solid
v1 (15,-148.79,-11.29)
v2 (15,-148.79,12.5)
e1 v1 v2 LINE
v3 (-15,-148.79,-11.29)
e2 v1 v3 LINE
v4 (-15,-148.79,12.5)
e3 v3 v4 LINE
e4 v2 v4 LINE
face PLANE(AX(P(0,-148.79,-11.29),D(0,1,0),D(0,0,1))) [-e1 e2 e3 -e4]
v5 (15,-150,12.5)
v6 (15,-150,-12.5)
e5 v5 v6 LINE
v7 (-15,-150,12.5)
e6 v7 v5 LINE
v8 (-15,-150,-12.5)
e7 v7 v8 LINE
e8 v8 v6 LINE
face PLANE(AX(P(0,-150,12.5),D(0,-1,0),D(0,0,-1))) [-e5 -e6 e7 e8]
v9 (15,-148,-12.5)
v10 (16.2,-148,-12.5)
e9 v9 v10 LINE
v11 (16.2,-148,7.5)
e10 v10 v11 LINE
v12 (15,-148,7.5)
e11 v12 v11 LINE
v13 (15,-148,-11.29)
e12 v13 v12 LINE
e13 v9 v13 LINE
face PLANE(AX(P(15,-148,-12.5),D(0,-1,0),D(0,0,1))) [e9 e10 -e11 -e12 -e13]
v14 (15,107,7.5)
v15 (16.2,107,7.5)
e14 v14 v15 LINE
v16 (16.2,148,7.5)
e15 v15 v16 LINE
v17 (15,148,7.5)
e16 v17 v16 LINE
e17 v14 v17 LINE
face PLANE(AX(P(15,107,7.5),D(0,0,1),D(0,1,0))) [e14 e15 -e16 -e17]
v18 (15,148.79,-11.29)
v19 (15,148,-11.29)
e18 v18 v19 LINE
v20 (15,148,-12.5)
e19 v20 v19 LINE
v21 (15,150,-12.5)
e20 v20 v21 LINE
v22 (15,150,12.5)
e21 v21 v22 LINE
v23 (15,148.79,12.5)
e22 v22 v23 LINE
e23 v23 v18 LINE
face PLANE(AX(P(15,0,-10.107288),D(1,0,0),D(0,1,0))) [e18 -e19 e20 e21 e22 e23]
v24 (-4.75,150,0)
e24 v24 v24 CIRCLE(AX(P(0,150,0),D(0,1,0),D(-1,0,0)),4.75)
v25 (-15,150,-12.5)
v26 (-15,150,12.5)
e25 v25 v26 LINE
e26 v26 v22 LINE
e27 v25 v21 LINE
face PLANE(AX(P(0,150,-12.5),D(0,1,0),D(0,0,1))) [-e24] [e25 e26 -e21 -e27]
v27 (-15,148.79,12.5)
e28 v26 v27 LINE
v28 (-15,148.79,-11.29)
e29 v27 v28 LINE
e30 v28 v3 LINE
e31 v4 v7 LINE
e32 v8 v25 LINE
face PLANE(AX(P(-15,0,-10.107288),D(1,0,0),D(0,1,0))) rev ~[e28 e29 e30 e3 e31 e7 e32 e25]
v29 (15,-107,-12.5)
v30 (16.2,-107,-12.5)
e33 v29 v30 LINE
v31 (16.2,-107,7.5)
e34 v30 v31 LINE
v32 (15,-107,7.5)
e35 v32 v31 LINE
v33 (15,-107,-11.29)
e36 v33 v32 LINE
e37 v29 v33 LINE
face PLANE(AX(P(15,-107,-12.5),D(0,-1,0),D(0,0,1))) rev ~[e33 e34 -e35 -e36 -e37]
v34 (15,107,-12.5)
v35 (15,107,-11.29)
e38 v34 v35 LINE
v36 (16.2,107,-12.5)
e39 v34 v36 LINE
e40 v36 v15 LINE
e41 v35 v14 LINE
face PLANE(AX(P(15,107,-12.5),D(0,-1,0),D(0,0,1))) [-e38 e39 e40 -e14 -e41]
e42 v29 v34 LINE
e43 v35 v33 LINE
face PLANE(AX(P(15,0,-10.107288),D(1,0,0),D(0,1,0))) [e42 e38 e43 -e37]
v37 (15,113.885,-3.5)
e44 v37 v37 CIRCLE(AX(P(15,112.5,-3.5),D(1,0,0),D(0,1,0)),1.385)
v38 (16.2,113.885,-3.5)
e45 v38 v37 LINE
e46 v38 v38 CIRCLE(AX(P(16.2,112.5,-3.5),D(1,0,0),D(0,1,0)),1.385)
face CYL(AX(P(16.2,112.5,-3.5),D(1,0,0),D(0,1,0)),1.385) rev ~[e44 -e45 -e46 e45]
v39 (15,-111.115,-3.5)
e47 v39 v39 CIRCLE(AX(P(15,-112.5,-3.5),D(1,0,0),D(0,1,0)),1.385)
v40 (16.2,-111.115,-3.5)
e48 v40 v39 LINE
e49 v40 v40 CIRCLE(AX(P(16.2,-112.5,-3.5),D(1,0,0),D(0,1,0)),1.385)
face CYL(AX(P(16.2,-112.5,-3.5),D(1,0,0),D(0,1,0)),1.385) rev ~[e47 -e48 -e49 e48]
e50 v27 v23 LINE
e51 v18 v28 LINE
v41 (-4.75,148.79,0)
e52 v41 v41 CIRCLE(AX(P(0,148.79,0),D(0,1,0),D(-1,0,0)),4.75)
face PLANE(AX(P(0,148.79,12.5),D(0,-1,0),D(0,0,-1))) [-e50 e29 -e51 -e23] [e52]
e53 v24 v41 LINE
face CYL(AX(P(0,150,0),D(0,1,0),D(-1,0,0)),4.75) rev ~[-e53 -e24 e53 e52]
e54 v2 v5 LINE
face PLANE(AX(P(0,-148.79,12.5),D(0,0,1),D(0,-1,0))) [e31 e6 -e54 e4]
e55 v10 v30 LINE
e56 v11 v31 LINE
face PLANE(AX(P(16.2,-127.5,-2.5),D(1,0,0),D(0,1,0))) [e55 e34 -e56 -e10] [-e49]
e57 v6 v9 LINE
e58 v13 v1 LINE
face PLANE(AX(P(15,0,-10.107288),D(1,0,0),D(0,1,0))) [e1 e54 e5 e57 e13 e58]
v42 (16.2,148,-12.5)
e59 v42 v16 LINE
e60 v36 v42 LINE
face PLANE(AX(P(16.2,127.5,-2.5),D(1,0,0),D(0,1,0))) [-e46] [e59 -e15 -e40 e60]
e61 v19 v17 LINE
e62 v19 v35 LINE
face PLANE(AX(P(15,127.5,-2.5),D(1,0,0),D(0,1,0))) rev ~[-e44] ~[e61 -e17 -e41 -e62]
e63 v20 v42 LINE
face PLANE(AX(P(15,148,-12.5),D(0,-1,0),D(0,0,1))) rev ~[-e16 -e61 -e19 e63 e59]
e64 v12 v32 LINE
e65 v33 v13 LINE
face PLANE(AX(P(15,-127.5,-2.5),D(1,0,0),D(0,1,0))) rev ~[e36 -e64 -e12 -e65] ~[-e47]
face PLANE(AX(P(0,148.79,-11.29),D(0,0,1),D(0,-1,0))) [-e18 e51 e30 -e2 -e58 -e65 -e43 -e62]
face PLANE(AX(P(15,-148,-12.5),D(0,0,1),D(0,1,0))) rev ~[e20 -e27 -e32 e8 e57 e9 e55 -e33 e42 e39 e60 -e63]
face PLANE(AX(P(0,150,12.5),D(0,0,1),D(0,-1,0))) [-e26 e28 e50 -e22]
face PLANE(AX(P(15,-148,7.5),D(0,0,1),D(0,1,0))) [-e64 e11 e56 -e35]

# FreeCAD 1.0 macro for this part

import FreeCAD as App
import Part
import Sketcher
Q = App.Units.Quantity


def add_polygon(sketch, points):
    """Adds a closed chain of lines whose ends are joined by coincident constraints."""
    first, n = sketch.GeometryCount, len(points)
    for a, b in zip(points, points[1:] + points[:1]):
        sketch.addGeometry(Part.LineSegment(App.Vector(*a, 0), App.Vector(*b, 0)), False)
    for i in range(n):
        sketch.addConstraint(Sketcher.Constraint("Coincident", first + i, 2, first + (i + 1) % n, 1))

doc = App.newDocument("Part")
body = doc.addObject("PartDesign::Body", "Body")

# Sketch on YZ plane
sketch1 = body.newObject("Sketcher::SketchObject", "Sketch")
sketch1.AttachmentSupport = (doc.getObject("YZ_Plane"), [""])
sketch1.MapMode = "FlatFace"
add_polygon(sketch1, [(-148.8, 12.5), (-150, 12.5), (-150, -12.5), (150, -12.5), (150, 12.5), (148.8, 12.5), (148.8, -11.3), (-148.8, -11.3)])  # lines 0-7
sketch1.addConstraint(Sketcher.Constraint("Horizontal", 0))
sketch1.addConstraint(Sketcher.Constraint("Vertical", 1))
sketch1.addConstraint(Sketcher.Constraint("Horizontal", 2))
sketch1.addConstraint(Sketcher.Constraint("Vertical", 3))
sketch1.addConstraint(Sketcher.Constraint("Horizontal", 4))
sketch1.addConstraint(Sketcher.Constraint("Vertical", 5))
sketch1.addConstraint(Sketcher.Constraint("Horizontal", 6))
sketch1.addConstraint(Sketcher.Constraint("Vertical", 7))
sketch1.addConstraint(Sketcher.Constraint("Symmetric", 0, 2, 2, 2, -1, 1))
sketch1.addConstraint(Sketcher.Constraint("Symmetric", 4, 2, 7, 2, -2))
sketch1.addConstraint(Sketcher.Constraint("DistanceX", 2, 1, 2, 2, Q("300 mm")))
sketch1.addConstraint(Sketcher.Constraint("DistanceY", 1, 2, 1, 1, Q("25 mm")))
sketch1.addConstraint(Sketcher.Constraint("DistanceX", 0, 2, 0, 1, Q("1.21 mm")))
sketch1.addConstraint(Sketcher.Constraint("DistanceY", 5, 2, 5, 1, Q("23.79 mm")))
pad1 = body.newObject("PartDesign::Pad", "Pad")
pad1.Profile = sketch1
pad1.Length = 30
pad1.Midplane = True

# Sketch on YZ plane
sketch2 = body.newObject("Sketcher::SketchObject", "Sketch001")
sketch2.AttachmentSupport = (doc.getObject("YZ_Plane"), [""])
sketch2.MapMode = "FlatFace"
sketch2.AttachmentOffset = App.Placement(App.Vector(0, 0, 15), App.Rotation())
add_polygon(sketch2, [(-148, 8), (-148, -12), (-107, -12), (-107, 8)])  # lines 0-3
add_polygon(sketch2, [(107, 8), (107, -12), (148, -12), (148, 8)])  # lines 4-7
sketch2.addConstraint(Sketcher.Constraint("Vertical", 0))
sketch2.addConstraint(Sketcher.Constraint("Horizontal", 1))
sketch2.addConstraint(Sketcher.Constraint("Vertical", 2))
sketch2.addConstraint(Sketcher.Constraint("Horizontal", 3))
sketch2.addConstraint(Sketcher.Constraint("Vertical", 4))
sketch2.addConstraint(Sketcher.Constraint("Horizontal", 5))
sketch2.addConstraint(Sketcher.Constraint("Vertical", 6))
sketch2.addConstraint(Sketcher.Constraint("Horizontal", 7))
sketch2.addConstraint(Sketcher.Constraint("Symmetric", 1, 2, 4, 2, -2))
sketch2.addConstraint(Sketcher.Constraint("Symmetric", 3, 2, 6, 2, -2))
sketch2.addConstraint(Sketcher.Constraint("DistanceX", 1, 1, 1, 2, Q("41 mm")))
sketch2.addConstraint(Sketcher.Constraint("DistanceY", 0, 2, 0, 1, Q("20 mm")))
sketch2.addConstraint(Sketcher.Constraint("DistanceX", 0, 2, -1, 1, Q("148 mm")))
sketch2.addConstraint(Sketcher.Constraint("DistanceY", 0, 2, -1, 1, Q("12.5 mm")))
pad2 = body.newObject("PartDesign::Pad", "Pad001")
pad2.Profile = sketch2
pad2.Length = 1.2

# Sketch on XZ plane
sketch3 = body.newObject("Sketcher::SketchObject", "Sketch002")
sketch3.AttachmentSupport = (doc.getObject("XZ_Plane"), [""])
sketch3.MapMode = "FlatFace"
sketch3.AttachmentOffset = App.Placement(App.Vector(0, 0, -150), App.Rotation())
sketch3.addGeometry(Part.Circle(App.Vector(0, 0, 0), App.Vector(0, 0, 1), 4.8), False)
sketch3.addConstraint(Sketcher.Constraint("Coincident", 0, 3, -1, 1))
sketch3.addConstraint(Sketcher.Constraint("Diameter", 0, Q("9.5 mm")))
pocket1 = body.newObject("PartDesign::Pocket", "Pocket")
pocket1.Profile = sketch3
pocket1.Length = 1.21
pocket1.Reversed = True

# Sketch on YZ plane
sketch4 = body.newObject("Sketcher::SketchObject", "Sketch003")
sketch4.AttachmentSupport = (doc.getObject("YZ_Plane"), [""])
sketch4.MapMode = "FlatFace"
sketch4.AttachmentOffset = App.Placement(App.Vector(0, 0, 16.2), App.Rotation())
sketch4.addGeometry(Part.Circle(App.Vector(-112.5, -3.5, 0), App.Vector(0, 0, 1), 1.4), False)
sketch4.addGeometry(Part.Circle(App.Vector(112.5, -3.5, 0), App.Vector(0, 0, 1), 1.4), False)
sketch4.addConstraint(Sketcher.Constraint("Equal", 0, 1))
sketch4.addConstraint(Sketcher.Constraint("Symmetric", 0, 3, 1, 3, -2))
sketch4.addConstraint(Sketcher.Constraint("Diameter", 0, Q("2.77 mm")))
sketch4.addConstraint(Sketcher.Constraint("DistanceX", 0, 3, 1, 3, Q("225 mm")))
sketch4.addConstraint(Sketcher.Constraint("DistanceY", 0, 3, -1, 1, Q("3.5 mm")))
pocket2 = body.newObject("PartDesign::Pocket", "Pocket001")
pocket2.Profile = sketch4
pocket2.Type = "ThroughAll"

doc.recompute()
